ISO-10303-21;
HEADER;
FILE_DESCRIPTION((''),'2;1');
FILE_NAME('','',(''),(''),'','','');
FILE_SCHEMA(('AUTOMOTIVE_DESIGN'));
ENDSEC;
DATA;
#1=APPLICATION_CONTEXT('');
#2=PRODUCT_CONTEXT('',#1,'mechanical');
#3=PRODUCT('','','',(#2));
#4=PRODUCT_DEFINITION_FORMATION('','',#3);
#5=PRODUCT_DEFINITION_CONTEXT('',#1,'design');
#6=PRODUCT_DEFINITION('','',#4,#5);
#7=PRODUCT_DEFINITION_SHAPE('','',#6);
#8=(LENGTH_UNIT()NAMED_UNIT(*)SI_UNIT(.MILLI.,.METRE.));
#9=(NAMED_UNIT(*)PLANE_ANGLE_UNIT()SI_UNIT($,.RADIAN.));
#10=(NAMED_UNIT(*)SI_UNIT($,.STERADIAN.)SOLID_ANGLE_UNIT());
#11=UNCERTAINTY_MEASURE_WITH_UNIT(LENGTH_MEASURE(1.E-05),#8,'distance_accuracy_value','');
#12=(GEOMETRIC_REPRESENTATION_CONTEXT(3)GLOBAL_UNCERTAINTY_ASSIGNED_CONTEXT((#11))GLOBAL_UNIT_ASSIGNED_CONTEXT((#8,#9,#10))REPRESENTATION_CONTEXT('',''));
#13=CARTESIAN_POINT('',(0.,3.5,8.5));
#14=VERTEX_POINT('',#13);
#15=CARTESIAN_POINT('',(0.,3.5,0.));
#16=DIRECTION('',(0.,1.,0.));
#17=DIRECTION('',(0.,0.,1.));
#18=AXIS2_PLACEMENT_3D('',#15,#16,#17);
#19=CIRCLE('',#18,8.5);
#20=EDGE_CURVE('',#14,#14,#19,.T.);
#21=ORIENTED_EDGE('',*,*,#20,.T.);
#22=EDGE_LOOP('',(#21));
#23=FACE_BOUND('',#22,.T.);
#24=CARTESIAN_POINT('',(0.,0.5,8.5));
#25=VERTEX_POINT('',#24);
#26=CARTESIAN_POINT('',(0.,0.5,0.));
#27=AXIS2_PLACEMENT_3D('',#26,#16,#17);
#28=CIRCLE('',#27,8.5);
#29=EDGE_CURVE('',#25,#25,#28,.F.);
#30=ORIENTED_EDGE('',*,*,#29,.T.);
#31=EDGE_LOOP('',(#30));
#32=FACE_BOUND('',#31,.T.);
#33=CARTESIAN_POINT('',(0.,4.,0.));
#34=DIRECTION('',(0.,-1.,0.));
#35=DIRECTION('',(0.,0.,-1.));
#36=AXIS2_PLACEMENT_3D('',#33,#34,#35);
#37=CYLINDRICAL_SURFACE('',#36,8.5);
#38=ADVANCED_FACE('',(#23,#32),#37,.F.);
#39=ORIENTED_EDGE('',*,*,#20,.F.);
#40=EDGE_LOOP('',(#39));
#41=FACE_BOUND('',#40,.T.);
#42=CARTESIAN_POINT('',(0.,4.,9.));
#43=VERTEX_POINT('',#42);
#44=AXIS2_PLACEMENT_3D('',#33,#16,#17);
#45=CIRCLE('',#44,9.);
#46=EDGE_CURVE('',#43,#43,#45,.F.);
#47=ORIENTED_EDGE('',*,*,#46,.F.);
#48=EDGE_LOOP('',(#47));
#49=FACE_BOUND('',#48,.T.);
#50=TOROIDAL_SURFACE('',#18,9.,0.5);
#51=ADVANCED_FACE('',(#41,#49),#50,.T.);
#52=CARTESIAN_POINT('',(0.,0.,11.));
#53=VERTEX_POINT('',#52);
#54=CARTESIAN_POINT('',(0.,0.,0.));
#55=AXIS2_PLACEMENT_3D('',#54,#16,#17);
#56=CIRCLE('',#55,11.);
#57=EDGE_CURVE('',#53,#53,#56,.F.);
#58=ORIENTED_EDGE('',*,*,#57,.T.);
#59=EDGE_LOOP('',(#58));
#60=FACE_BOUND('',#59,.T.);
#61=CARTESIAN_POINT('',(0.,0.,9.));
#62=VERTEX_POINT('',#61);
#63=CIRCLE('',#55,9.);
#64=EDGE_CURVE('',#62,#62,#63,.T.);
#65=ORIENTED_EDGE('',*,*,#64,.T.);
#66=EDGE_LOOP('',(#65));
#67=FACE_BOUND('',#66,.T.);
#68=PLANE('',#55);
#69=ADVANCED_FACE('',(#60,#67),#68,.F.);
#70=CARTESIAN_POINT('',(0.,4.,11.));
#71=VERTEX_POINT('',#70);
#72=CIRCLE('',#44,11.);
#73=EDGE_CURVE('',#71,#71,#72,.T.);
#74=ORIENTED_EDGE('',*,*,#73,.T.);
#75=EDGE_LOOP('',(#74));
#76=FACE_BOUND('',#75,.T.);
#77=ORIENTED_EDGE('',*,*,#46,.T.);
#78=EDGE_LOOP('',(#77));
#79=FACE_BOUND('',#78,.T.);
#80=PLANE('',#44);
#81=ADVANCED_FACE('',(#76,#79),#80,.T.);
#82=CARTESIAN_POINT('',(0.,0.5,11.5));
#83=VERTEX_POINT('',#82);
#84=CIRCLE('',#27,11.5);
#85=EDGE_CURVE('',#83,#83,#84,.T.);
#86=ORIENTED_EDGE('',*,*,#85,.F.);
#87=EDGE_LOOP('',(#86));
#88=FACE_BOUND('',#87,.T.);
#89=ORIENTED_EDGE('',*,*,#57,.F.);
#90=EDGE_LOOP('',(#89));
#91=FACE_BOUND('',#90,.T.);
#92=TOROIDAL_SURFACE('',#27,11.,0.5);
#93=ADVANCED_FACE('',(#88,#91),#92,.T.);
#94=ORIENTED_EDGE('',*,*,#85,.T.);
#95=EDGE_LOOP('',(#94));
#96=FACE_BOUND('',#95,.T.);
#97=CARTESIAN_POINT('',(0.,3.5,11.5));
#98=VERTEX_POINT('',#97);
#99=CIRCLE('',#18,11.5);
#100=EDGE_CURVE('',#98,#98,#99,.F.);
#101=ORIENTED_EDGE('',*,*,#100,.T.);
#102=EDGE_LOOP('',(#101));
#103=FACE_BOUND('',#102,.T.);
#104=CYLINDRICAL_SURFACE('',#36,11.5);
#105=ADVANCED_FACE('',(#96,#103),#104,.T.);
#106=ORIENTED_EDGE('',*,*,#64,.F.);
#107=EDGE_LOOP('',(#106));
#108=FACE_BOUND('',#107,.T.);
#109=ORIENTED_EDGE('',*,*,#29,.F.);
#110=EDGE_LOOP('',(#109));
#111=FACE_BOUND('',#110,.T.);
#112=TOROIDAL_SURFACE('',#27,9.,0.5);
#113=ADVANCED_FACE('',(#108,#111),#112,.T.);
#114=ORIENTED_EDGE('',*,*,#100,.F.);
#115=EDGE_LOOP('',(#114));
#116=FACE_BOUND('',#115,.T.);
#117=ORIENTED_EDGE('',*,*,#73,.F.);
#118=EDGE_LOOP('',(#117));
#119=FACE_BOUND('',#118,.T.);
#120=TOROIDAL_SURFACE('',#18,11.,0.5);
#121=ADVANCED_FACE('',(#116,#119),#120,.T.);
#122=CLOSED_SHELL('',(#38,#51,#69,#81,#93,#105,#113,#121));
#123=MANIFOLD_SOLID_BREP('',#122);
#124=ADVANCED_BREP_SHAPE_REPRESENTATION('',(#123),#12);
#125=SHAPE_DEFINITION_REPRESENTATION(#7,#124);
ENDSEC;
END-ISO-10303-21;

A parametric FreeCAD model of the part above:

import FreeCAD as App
import Part
import Sketcher
Q = App.Units.Quantity


def edges_at(feature, points):
    """Names of the edges that pass closest to the given points."""
    edges = feature.Shape.Edges
    near = lambda p: min(range(len(edges)), key=lambda i: edges[i].distToShape(Part.Vertex(*p))[0])
    return sorted({f"Edge{near(p) + 1}" for p in points})

doc = App.newDocument("Part")
body = doc.addObject("PartDesign::Body", "Body")

# Sketch on XZ plane
sketch1 = doc.addObject("Sketcher::SketchObject", "Sketch")
body.addObject(sketch1)
sketch1.AttachmentSupport = (doc.XZ_Plane, [""])
sketch1.MapMode = "FlatFace"
sketch1.addGeometry(Part.Circle(App.Vector(0, 0, 0), App.Vector(0, 0, 1), 12), False)
sketch1.addGeometry(Part.Circle(App.Vector(0, 0, 0), App.Vector(0, 0, 1), 8), False)
sketch1.addConstraint(Sketcher.Constraint("Coincident", 0, 3, -1, 1))
sketch1.addConstraint(Sketcher.Constraint("Coincident", 1, 3, -1, 1))
sketch1.addConstraint(Sketcher.Constraint("Diameter", 0, Q("23 mm")))
sketch1.addConstraint(Sketcher.Constraint("Diameter", 1, Q("17 mm")))
pad1 = doc.addObject("PartDesign::Pad", "Pad")
body.addObject(pad1)
pad1.Profile = sketch1
pad1.Length = 4
pad1.Reversed = True
doc.recompute()

fillet = doc.addObject("PartDesign::Fillet", "Fillet")
body.addObject(fillet)
fillet.Base = (pad1, edges_at(pad1, [
    (-11.5, 0, 0),
    (-11.5, 4, 0),
    (-8.5, 0, 0),
    (-8.5, 4, 0),
]))
fillet.Radius = 0.5

doc.recompute()
